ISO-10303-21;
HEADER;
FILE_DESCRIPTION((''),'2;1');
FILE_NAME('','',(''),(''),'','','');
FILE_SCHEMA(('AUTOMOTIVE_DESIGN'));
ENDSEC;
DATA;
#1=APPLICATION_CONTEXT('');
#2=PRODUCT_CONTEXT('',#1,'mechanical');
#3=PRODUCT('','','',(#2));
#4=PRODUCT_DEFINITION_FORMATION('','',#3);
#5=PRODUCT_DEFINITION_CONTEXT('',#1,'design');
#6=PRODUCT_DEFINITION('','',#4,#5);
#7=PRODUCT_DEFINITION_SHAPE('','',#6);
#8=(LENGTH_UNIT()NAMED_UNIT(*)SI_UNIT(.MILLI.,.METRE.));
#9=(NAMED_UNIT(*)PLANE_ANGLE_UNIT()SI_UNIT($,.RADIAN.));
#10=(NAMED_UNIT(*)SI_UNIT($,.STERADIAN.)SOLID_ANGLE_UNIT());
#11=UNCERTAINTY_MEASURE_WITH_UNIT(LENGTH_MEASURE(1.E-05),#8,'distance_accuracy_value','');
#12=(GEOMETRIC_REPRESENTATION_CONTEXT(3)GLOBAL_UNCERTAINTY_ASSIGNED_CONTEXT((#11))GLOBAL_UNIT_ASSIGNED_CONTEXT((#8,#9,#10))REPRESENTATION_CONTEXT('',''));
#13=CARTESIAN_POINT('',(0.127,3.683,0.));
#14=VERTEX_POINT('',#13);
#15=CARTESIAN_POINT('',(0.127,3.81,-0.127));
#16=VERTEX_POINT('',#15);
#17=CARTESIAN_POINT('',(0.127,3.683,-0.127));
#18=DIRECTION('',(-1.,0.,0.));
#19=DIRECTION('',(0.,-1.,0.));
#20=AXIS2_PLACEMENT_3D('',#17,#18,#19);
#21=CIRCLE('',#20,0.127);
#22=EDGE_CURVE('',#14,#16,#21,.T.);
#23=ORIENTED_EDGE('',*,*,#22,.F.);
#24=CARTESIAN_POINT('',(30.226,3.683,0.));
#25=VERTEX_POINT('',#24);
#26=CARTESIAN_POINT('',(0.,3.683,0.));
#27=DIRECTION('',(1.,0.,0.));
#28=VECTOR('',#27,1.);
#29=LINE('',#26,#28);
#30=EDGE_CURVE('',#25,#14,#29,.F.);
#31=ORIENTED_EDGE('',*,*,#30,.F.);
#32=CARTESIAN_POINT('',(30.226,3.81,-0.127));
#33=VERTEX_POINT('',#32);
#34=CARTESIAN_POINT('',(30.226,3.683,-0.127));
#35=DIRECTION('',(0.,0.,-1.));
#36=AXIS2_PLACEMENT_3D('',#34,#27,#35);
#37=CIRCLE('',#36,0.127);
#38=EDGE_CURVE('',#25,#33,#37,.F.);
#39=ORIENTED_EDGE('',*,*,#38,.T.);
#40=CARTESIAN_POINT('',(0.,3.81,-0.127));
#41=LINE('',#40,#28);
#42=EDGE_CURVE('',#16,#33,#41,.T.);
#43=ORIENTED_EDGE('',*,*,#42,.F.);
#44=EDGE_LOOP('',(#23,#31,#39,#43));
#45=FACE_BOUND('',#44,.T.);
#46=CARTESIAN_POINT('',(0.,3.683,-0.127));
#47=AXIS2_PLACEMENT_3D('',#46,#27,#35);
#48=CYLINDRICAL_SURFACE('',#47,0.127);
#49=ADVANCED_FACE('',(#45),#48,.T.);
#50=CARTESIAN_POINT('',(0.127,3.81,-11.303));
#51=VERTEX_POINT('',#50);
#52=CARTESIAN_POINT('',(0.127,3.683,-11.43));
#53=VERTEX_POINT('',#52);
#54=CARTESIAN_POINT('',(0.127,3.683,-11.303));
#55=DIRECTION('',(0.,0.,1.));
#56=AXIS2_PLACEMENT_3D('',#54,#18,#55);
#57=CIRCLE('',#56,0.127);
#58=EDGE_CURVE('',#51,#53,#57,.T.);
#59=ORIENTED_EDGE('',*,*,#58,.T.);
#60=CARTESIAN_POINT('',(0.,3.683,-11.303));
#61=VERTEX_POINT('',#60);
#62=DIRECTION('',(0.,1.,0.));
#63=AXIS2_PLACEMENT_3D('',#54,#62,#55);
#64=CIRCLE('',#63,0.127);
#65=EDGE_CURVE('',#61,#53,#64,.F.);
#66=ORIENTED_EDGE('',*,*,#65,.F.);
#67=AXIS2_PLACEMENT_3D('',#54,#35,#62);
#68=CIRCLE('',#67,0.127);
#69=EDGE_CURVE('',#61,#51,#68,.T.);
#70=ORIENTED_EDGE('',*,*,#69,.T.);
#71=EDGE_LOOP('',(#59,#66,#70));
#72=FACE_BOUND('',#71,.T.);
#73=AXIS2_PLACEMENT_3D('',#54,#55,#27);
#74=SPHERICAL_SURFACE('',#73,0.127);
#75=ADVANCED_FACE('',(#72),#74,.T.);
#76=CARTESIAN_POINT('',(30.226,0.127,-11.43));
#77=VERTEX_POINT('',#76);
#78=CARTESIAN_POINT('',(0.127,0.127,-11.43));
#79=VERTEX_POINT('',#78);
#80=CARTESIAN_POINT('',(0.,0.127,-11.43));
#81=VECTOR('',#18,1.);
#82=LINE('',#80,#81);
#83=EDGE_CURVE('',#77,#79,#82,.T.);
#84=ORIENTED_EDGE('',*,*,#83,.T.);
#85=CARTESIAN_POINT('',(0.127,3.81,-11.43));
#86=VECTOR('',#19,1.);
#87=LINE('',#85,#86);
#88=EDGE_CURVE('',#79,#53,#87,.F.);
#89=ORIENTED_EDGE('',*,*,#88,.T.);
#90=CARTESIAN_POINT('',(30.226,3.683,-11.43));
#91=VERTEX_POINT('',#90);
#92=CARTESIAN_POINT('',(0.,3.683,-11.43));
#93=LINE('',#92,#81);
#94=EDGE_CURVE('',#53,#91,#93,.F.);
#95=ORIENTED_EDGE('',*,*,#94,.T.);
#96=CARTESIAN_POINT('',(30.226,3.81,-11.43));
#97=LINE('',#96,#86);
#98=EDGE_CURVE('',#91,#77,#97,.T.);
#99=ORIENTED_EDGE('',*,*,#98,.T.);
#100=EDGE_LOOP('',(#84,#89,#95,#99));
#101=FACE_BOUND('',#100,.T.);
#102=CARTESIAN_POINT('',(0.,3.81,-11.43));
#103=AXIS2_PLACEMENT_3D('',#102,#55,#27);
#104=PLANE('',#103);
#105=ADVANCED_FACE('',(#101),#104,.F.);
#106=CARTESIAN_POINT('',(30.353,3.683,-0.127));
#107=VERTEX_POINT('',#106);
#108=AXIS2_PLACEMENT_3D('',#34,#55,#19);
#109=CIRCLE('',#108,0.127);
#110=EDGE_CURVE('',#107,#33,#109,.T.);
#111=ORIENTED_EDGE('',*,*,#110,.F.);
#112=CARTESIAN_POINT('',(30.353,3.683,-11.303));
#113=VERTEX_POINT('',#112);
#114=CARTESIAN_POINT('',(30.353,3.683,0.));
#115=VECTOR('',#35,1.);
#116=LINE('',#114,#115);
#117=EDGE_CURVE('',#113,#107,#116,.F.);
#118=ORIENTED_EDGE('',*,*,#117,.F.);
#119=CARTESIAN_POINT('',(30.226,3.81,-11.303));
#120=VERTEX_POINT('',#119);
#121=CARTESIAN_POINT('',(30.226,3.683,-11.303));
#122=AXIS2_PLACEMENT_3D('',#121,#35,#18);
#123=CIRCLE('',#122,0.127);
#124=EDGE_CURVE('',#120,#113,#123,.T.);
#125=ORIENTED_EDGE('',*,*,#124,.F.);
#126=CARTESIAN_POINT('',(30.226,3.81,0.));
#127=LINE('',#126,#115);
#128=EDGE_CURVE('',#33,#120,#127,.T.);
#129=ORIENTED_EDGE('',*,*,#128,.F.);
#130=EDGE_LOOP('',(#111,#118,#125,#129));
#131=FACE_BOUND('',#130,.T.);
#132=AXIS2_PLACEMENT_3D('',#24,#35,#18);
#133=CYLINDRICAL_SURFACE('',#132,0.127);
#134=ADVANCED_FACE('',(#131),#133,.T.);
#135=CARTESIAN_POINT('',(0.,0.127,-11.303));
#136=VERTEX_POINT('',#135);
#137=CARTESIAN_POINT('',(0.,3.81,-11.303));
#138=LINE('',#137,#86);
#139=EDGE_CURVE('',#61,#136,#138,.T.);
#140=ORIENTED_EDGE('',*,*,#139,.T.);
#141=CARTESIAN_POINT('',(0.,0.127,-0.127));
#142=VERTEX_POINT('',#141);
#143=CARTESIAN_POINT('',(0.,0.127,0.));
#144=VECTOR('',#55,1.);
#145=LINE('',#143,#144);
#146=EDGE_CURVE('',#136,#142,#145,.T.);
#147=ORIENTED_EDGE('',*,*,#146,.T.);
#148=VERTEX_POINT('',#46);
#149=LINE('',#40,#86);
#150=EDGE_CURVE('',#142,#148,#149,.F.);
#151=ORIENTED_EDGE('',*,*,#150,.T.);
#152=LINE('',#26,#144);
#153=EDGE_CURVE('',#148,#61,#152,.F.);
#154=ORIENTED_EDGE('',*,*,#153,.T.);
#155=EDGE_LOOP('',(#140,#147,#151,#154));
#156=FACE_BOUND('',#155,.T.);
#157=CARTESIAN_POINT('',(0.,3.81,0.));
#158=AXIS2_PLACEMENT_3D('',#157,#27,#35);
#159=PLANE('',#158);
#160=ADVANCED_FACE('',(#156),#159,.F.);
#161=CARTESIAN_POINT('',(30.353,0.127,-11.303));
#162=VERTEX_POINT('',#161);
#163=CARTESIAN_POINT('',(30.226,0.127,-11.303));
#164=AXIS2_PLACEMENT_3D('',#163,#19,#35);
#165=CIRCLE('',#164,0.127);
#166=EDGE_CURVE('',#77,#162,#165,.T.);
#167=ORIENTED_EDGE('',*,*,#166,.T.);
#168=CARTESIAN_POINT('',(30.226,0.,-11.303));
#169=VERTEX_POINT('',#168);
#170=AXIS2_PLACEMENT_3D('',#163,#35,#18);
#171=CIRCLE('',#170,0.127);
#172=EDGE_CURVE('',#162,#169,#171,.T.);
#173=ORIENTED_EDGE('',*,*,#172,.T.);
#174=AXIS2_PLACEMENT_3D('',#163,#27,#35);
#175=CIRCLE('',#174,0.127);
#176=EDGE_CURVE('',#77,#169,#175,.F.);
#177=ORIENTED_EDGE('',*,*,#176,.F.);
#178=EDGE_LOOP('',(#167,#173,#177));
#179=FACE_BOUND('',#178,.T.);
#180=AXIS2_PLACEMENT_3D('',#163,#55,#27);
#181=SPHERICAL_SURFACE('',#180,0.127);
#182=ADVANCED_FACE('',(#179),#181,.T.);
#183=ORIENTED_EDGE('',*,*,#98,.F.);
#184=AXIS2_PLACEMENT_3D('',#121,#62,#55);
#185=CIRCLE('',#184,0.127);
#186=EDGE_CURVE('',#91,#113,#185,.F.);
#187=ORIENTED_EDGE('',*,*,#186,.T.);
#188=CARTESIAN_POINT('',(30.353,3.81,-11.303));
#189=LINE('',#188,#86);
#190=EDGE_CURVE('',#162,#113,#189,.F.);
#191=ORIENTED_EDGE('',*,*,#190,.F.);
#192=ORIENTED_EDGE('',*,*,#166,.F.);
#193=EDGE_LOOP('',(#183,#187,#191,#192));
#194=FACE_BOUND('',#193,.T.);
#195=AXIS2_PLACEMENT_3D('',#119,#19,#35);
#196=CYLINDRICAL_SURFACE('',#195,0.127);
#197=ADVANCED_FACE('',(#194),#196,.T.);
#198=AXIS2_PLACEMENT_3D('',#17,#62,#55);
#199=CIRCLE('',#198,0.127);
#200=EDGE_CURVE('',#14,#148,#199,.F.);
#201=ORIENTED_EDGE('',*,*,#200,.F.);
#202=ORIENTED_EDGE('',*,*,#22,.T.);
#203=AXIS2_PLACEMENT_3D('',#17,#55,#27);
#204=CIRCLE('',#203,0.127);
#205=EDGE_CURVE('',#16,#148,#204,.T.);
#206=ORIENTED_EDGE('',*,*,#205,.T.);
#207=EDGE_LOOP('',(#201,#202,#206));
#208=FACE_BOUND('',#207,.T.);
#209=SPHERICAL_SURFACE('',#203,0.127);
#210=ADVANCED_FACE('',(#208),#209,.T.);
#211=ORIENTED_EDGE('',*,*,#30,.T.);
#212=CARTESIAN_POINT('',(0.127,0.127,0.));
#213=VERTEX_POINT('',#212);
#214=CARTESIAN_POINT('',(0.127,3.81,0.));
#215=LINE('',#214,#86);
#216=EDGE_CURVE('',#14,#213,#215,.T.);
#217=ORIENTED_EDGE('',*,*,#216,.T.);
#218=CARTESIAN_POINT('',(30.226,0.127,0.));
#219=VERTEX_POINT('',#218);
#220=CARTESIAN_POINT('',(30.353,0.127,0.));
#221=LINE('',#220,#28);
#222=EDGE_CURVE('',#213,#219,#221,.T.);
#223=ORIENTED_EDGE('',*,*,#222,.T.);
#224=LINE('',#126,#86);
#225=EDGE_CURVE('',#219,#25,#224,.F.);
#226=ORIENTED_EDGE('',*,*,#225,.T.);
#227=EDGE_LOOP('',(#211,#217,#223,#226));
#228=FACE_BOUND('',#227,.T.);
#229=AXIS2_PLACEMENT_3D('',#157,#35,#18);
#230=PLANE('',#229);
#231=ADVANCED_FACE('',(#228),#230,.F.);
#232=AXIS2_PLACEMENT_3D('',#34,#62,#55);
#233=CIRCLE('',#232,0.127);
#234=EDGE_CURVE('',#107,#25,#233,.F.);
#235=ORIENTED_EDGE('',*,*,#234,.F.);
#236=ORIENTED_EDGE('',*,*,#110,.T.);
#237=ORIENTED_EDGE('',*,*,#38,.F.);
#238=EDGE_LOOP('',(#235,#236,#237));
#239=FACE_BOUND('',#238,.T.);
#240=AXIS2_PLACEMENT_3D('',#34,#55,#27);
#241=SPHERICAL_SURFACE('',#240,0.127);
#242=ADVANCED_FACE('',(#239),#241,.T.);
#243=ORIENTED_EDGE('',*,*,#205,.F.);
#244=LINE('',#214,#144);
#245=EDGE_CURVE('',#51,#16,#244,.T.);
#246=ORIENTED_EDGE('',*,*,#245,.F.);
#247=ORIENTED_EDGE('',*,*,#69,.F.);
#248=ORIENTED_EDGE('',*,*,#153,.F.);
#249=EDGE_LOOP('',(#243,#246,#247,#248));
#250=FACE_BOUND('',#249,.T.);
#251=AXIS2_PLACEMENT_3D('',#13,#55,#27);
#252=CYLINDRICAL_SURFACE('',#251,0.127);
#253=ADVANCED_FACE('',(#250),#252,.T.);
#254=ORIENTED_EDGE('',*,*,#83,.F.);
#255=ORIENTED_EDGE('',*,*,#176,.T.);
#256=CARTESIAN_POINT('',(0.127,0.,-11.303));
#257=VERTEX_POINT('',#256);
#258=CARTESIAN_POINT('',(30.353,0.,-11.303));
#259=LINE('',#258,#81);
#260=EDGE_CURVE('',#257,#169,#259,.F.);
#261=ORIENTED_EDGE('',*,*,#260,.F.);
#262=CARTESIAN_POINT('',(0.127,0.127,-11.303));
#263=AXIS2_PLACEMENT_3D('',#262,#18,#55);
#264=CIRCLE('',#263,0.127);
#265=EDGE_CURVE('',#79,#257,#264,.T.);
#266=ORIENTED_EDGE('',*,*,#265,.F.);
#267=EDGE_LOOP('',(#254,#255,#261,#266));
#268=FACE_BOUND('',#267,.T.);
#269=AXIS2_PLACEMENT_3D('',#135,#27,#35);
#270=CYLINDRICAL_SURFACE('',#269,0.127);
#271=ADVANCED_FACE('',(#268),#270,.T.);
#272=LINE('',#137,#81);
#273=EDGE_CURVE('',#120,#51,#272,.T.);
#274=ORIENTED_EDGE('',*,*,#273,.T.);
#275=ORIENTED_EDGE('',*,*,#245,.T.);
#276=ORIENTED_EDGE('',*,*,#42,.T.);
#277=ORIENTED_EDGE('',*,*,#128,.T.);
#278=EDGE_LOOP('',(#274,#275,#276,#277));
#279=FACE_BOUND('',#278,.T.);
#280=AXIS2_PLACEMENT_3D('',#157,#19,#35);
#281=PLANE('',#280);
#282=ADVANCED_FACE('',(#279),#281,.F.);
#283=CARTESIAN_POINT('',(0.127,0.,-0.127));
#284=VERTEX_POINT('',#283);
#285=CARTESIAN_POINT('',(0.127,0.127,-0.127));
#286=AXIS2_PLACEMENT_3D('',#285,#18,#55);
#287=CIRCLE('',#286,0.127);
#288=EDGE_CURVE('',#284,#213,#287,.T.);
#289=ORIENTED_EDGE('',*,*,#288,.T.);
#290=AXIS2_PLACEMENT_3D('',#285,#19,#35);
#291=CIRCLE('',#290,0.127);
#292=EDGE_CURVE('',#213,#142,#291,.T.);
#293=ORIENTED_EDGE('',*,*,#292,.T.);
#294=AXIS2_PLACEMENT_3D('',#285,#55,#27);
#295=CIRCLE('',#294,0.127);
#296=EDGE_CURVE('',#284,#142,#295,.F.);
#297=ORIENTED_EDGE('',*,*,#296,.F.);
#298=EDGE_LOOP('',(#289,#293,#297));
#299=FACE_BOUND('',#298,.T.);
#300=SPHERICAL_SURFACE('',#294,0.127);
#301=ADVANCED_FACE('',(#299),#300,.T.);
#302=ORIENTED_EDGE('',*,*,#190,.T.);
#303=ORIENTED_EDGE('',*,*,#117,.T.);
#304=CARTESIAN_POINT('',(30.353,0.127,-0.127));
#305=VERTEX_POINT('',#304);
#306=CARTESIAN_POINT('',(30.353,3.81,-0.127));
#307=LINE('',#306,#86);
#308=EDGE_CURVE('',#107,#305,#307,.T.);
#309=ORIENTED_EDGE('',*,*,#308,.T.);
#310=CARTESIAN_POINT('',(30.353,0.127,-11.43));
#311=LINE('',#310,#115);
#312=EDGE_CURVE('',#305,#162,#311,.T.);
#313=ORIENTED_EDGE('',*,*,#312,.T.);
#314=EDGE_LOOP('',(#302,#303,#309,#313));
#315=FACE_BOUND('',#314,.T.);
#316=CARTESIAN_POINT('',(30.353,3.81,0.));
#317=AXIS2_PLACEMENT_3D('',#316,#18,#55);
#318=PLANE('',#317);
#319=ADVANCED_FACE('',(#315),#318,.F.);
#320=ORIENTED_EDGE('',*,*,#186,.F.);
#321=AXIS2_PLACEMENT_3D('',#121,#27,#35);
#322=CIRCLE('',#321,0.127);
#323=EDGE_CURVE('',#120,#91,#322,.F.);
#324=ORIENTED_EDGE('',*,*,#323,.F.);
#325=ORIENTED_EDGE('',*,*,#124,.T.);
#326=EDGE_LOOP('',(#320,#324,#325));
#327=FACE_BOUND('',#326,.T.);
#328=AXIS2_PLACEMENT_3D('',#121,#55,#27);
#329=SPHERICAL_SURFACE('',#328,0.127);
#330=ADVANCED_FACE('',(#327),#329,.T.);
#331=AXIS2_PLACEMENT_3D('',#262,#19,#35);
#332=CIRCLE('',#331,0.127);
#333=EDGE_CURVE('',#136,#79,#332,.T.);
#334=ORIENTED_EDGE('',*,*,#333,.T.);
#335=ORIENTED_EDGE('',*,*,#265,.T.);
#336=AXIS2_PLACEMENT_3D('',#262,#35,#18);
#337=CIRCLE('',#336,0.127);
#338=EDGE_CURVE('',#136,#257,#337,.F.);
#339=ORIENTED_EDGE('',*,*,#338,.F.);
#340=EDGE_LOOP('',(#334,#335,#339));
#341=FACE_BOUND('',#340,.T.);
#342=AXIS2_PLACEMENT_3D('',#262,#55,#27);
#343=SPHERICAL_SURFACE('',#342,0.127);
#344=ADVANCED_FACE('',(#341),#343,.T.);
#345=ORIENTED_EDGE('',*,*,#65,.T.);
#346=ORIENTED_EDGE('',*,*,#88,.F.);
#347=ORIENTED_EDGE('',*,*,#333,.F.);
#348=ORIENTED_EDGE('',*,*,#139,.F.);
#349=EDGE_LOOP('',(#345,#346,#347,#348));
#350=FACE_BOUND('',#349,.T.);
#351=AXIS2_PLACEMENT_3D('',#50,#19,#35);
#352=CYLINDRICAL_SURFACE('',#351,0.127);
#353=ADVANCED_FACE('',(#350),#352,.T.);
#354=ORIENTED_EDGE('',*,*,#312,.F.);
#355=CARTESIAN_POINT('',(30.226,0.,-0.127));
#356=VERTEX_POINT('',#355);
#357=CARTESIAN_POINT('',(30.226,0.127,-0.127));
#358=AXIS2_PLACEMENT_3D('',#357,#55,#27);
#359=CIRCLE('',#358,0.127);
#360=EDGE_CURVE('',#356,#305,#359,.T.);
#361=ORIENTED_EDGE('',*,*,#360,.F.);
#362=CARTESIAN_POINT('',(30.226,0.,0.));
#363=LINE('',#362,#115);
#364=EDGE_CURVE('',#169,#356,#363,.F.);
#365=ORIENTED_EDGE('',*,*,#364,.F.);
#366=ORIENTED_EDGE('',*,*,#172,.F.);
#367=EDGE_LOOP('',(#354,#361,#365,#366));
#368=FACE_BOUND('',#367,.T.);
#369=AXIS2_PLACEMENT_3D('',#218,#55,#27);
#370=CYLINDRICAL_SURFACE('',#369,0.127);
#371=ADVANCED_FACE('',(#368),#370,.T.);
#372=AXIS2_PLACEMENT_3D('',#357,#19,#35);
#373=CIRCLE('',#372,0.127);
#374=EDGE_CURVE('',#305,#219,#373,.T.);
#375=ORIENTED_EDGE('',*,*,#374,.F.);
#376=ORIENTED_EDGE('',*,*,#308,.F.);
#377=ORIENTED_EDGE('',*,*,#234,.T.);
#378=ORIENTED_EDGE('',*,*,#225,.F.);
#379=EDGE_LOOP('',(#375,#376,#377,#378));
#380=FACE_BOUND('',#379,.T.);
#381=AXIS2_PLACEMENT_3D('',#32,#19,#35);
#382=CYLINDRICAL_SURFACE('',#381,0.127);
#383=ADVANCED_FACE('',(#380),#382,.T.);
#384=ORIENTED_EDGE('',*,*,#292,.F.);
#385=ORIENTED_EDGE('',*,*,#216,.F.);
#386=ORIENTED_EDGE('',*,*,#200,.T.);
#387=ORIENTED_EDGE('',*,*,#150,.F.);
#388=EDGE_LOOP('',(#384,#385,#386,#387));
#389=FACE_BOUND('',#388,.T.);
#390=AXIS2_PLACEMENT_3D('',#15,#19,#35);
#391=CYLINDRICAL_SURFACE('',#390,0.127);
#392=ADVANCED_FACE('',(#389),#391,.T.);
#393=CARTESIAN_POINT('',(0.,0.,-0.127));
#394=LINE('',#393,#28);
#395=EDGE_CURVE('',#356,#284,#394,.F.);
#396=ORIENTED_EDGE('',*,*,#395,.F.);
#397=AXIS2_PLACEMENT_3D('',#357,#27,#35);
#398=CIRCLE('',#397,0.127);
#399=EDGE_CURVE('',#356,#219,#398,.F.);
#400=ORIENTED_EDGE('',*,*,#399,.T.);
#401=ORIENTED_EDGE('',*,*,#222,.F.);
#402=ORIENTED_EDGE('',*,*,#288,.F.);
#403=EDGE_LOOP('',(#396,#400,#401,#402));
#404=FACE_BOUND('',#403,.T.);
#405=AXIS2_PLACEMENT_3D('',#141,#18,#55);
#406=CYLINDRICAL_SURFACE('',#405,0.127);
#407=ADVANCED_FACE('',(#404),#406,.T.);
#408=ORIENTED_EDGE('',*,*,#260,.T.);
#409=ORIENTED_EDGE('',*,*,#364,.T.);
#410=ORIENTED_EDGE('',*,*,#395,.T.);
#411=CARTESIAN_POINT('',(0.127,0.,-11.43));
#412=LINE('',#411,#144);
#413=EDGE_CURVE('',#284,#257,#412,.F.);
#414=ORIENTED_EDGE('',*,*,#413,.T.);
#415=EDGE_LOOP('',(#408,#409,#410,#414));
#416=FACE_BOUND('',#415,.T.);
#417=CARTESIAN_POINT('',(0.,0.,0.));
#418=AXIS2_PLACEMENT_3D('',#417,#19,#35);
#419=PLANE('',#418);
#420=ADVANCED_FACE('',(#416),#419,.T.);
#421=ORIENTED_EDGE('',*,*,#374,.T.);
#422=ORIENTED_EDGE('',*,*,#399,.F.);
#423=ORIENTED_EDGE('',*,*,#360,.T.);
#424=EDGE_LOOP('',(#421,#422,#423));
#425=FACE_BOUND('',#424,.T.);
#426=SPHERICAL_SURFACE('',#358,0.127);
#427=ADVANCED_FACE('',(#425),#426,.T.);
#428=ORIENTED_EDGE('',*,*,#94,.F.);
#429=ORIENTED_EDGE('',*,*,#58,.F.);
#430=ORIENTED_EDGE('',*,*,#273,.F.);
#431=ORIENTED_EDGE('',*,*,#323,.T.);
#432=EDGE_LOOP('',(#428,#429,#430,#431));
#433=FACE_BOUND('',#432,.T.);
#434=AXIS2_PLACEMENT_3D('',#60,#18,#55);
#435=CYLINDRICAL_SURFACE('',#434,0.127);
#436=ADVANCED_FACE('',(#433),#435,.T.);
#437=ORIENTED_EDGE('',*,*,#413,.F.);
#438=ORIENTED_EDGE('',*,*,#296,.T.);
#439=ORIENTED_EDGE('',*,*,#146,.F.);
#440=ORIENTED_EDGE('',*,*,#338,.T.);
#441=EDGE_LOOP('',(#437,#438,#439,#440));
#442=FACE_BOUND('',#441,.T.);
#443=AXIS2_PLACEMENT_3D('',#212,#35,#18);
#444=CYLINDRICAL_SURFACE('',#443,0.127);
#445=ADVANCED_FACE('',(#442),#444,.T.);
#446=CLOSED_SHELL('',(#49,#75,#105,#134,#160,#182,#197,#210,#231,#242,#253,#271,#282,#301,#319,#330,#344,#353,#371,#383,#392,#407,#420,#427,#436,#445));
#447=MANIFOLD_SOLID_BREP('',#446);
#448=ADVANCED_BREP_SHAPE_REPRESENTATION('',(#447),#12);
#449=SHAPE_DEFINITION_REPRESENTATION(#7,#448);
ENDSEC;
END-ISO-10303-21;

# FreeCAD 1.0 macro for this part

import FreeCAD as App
import Part
import Sketcher
from FreeCAD import Vector
Q = App.Units.Quantity


def add_polygon(sketch, points):
    """Adds a closed chain of lines whose ends are joined by coincident constraints."""
    first, n = sketch.GeometryCount, len(points)
    for a, b in zip(points, points[1:] + points[:1]):
        sketch.addGeometry(Part.LineSegment(App.Vector(*a, 0), App.Vector(*b, 0)), False)
    for i in range(n):
        sketch.addConstraint(Sketcher.Constraint("Coincident", first + i, 2, first + (i + 1) % n, 1))

doc = App.newDocument("Part")
body = doc.addObject("PartDesign::Body", "Body")

sketch1 = doc.addObject("Sketcher::SketchObject", "Sketch")
body.addObject(sketch1)
sketch1.AttachmentSupport = (doc.XZ_Plane, [""])
sketch1.MapMode = "FlatFace"
add_polygon(sketch1, [(0, -11), (0, 0), (30, 0), (30, -11)])
sketch1.addConstraint([
    Sketcher.Constraint("Vertical", 0),
    Sketcher.Constraint("Horizontal", 1),
    Sketcher.Constraint("Vertical", 2),
    Sketcher.Constraint("Horizontal", 3),
    Sketcher.Constraint("Coincident", 0, 2, -1, 1),
    Sketcher.Constraint("DistanceY", 0, 1, 0, 2, Q("0.45 in")),
    Sketcher.Constraint("DistanceX", 1, 1, 1, 2, Q("1.195 in")),
])
pad1 = doc.addObject("PartDesign::Pad", "Pad")
body.addObject(pad1)
pad1.Profile = sketch1
pad1.Length = Q("0.15 in")
pad1.Reversed = True
doc.recompute()

fillet = doc.addObject("PartDesign::Fillet", "Fillet")
body.addObject(fillet)
fillet.Base = (pad1, ["Edge1"])
fillet.UseAllEdges = True
fillet.Radius = Q("0.005 in")

doc.recompute()
